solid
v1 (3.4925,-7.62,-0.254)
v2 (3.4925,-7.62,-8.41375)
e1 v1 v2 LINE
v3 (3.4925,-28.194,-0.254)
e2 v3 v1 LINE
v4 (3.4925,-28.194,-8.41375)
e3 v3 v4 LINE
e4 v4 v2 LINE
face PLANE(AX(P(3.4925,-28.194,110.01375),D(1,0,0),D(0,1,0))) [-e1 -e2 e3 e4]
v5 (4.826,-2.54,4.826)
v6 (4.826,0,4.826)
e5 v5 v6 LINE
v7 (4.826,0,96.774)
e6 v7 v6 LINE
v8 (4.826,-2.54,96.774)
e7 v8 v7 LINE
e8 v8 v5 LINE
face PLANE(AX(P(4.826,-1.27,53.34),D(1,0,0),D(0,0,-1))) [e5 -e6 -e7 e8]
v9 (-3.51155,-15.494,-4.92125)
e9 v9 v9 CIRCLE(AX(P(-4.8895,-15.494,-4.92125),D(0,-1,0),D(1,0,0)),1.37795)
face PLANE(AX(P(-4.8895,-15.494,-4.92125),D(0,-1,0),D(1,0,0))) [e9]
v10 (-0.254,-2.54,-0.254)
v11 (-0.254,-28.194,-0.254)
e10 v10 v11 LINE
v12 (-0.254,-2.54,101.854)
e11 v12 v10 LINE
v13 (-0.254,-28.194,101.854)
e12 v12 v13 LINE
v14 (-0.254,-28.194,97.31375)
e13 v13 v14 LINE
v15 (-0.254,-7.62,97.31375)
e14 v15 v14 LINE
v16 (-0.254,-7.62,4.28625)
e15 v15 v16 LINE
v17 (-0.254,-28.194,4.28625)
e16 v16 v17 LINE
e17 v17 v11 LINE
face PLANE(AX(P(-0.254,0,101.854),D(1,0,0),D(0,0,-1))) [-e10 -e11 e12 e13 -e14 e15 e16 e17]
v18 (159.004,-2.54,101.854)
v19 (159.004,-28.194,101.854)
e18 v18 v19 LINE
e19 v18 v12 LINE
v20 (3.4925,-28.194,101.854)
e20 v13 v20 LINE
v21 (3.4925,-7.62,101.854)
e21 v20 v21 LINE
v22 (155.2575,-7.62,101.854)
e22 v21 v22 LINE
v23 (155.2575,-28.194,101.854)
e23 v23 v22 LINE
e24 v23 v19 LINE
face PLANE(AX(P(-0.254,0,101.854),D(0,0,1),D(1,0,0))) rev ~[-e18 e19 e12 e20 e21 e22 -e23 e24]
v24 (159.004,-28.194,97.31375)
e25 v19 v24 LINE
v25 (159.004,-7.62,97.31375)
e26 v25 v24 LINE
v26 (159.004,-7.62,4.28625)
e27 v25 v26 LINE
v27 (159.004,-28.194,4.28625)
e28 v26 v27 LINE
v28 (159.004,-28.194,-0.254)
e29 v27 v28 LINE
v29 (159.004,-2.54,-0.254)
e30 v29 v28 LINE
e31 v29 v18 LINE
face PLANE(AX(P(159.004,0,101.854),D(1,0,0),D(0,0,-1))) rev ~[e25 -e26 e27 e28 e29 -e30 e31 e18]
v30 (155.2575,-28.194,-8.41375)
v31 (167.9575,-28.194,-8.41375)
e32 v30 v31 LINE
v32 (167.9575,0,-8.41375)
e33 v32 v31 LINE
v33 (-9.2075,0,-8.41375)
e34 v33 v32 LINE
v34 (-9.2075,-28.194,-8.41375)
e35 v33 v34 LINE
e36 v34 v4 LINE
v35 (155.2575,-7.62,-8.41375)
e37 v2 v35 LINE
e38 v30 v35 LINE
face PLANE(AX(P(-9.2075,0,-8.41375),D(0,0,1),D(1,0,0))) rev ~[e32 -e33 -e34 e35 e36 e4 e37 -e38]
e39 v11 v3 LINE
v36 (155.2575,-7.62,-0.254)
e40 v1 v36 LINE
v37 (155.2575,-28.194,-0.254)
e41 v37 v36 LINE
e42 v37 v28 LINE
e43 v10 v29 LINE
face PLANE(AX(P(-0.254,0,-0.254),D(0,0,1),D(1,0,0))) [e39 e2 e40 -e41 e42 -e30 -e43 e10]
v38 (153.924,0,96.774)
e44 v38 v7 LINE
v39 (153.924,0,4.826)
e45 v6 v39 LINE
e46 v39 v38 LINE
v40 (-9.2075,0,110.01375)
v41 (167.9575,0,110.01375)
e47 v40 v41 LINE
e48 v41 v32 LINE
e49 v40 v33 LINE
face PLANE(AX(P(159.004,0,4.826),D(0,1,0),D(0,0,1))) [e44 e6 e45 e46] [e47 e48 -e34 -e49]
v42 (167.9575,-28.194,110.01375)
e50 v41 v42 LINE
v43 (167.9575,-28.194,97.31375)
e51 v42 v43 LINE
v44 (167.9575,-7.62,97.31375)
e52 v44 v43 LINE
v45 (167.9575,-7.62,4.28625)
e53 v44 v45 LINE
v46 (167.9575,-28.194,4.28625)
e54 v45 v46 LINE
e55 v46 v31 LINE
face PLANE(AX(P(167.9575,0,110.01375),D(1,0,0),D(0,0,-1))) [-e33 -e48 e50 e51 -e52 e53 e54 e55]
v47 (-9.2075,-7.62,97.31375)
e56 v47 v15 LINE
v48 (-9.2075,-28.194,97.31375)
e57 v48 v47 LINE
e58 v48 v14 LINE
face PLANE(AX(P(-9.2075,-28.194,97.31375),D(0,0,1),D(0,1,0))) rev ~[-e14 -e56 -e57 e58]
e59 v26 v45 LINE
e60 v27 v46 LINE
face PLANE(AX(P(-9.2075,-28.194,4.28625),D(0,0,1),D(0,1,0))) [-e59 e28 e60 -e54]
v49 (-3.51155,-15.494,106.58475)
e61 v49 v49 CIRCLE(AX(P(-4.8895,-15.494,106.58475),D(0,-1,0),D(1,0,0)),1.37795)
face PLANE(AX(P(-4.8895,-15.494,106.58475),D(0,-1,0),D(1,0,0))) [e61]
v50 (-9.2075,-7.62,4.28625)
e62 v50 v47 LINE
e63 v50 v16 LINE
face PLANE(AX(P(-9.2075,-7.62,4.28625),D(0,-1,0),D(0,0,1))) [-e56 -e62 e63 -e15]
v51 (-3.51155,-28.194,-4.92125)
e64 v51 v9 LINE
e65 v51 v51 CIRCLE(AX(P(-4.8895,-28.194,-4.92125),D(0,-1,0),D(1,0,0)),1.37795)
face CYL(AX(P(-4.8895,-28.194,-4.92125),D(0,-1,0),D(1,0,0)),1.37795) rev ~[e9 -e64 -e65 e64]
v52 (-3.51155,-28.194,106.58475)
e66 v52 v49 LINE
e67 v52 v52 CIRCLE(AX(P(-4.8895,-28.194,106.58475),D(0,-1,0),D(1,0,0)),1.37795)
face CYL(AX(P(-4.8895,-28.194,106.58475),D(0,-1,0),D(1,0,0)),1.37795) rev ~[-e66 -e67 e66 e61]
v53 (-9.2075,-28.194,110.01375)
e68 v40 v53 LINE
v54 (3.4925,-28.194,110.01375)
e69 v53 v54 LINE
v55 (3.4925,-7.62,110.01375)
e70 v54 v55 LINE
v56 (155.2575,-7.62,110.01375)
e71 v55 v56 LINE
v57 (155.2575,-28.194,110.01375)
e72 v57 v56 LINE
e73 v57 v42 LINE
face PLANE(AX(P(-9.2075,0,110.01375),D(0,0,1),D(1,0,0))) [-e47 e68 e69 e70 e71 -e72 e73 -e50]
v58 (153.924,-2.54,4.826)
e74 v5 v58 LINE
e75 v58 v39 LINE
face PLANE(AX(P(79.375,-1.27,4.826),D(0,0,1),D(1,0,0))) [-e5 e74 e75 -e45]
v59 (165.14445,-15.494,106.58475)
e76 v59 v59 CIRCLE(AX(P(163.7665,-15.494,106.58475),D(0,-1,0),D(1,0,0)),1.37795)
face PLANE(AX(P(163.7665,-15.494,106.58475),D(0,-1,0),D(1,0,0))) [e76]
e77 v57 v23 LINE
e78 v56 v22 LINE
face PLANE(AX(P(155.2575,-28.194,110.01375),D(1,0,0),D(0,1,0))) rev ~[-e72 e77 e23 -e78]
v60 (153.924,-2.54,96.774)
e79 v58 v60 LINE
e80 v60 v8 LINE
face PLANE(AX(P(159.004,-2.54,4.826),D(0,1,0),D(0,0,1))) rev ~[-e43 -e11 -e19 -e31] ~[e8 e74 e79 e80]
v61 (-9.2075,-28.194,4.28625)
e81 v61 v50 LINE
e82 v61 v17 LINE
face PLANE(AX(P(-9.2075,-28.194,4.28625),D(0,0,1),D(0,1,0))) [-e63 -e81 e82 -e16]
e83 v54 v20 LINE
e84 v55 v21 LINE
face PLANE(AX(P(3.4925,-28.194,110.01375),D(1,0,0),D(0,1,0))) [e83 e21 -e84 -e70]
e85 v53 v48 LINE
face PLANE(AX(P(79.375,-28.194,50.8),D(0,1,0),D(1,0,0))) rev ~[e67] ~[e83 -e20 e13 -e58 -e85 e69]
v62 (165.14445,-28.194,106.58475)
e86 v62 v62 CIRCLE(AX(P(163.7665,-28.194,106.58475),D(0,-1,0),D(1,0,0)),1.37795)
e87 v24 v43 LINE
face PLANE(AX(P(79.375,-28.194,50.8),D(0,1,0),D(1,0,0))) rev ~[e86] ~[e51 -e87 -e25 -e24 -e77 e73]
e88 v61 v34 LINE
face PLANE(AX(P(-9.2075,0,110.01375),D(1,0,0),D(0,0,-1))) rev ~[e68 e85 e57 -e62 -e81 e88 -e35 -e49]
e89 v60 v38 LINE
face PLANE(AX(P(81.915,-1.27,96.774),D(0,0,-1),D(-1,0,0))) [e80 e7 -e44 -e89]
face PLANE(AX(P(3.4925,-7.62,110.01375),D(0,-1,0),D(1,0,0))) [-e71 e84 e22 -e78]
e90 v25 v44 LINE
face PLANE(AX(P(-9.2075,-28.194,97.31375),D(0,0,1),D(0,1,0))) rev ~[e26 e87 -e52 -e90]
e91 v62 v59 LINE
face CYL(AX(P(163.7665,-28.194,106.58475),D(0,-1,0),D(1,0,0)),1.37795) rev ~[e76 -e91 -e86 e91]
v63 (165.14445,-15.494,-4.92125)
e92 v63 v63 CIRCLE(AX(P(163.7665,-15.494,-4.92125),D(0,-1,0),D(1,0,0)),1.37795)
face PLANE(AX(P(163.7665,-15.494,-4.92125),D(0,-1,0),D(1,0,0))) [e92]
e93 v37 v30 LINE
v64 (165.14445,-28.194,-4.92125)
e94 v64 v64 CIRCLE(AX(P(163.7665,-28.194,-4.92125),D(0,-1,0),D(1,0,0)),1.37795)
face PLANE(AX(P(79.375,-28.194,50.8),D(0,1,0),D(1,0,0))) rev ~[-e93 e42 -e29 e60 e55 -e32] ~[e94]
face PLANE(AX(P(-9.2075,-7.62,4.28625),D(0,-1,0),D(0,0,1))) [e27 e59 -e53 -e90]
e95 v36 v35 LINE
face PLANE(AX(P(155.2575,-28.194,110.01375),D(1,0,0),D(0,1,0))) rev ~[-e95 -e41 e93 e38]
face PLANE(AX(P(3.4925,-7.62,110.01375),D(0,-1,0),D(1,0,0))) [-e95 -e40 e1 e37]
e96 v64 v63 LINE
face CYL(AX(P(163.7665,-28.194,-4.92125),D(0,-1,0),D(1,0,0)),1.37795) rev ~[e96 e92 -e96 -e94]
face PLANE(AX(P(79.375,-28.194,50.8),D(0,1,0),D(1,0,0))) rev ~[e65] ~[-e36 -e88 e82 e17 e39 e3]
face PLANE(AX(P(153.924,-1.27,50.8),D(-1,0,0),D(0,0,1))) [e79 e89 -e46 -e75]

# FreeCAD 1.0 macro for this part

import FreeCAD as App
import Part
import Sketcher
from FreeCAD import Vector
Q = App.Units.Quantity

doc = App.newDocument("Part")
body = doc.addObject("PartDesign::Body", "Body")

# Sketch on XZ plane
sketch1 = body.newObject("Sketcher::SketchObject", "Sketch")
sketch1.AttachmentSupport = (doc.getObject("XZ_Plane"), [""])
sketch1.MapMode = "FlatFace"
sketch1.addGeometry([
    Part.LineSegment(Vector(-9, -8, 0), Vector(-9, 110, 0)),  # 0
    Part.LineSegment(Vector(-9, 110, 0), Vector(168, 110, 0)),  # 1
    Part.LineSegment(Vector(168, 110, 0), Vector(168, -8, 0)),  # 2
    Part.LineSegment(Vector(168, -8, 0), Vector(-9, -8, 0)),  # 3
    Part.LineSegment(Vector(159, 102, 0), Vector(0, 102, 0)),  # 4
    Part.LineSegment(Vector(0, 102, 0), Vector(0, 0, 0)),  # 5
    Part.LineSegment(Vector(0, 0, 0), Vector(159, 0, 0)),  # 6
    Part.LineSegment(Vector(159, 0, 0), Vector(159, 102, 0)),  # 7
], False)
sketch1.addConstraint([
    Sketcher.Constraint("Coincident", 0, 2, 1, 1),
    Sketcher.Constraint("Coincident", 1, 2, 2, 1),
    Sketcher.Constraint("Coincident", 2, 2, 3, 1),
    Sketcher.Constraint("Coincident", 3, 2, 0, 1),
    Sketcher.Constraint("Coincident", 4, 2, 5, 1),
    Sketcher.Constraint("Coincident", 5, 2, 6, 1),
    Sketcher.Constraint("Coincident", 6, 2, 7, 1),
    Sketcher.Constraint("Coincident", 7, 2, 4, 1),
    Sketcher.Constraint("Vertical", 0),
    Sketcher.Constraint("Horizontal", 1),
    Sketcher.Constraint("Vertical", 2),
    Sketcher.Constraint("Horizontal", 3),
    Sketcher.Constraint("Horizontal", 4),
    Sketcher.Constraint("Vertical", 5),
    Sketcher.Constraint("Horizontal", 6),
    Sketcher.Constraint("Vertical", 7),
    Sketcher.Constraint("DistanceX", 4, 2, 4, 1, Q("6.27 in")),
    Sketcher.Constraint("DistanceY", 5, 2, 5, 1, Q("4.02 in")),
    Sketcher.Constraint("DistanceX", 1, 1, 1, 2, Q("6.975 in")),
    Sketcher.Constraint("DistanceX", 4, 2, -1, 1, Q("0.01 in")),
    Sketcher.Constraint("DistanceY", -1, 1, 4, 2, Q("4.01 in")),
    Sketcher.Constraint("DistanceY", 0, 1, 0, 2, Q("4.6625 in")),
    Sketcher.Constraint("DistanceX", 0, 2, -1, 1, Q("0.3625 in")),
    Sketcher.Constraint("DistanceY", -1, 1, 0, 2, 110.01375),
])
pad1 = body.newObject("PartDesign::Pad", "Pad")
pad1.Profile = sketch1
pad1.Length = Q("1.11 in")

# Sketch on XY plane
sketch2 = body.newObject("Sketcher::SketchObject", "Sketch001")
sketch2.AttachmentSupport = (doc.getObject("XY_Plane"), [""])
sketch2.MapMode = "FlatFace"
sketch2.AttachmentOffset = App.Placement(Vector(0, 0, -0.01 * 25.4), App.Rotation())
sketch2.addGeometry([
    Part.LineSegment(Vector(-0.3, 0, 0), Vector(-0.3, -2.5, 0)),
    Part.LineSegment(Vector(-0.3, -2.5, 0), Vector(159, -2.5, 0)),
    Part.LineSegment(Vector(159, -2.5, 0), Vector(159, 0, 0)),
    Part.LineSegment(Vector(159, 0, 0), Vector(-0.3, 0, 0)),
], False)
sketch2.addConstraint([
    Sketcher.Constraint("Coincident", 0, 2, 1, 1),
    Sketcher.Constraint("Coincident", 1, 2, 2, 1),
    Sketcher.Constraint("Coincident", 2, 2, 3, 1),
    Sketcher.Constraint("Coincident", 3, 2, 0, 1),
    Sketcher.Constraint("Vertical", 0),
    Sketcher.Constraint("Horizontal", 1),
    Sketcher.Constraint("Vertical", 2),
    Sketcher.Constraint("Horizontal", 3),
    Sketcher.Constraint("PointOnObject", 2, 2, -1),
    Sketcher.Constraint("DistanceY", 0, 2, 0, 1, Q("0.1 in")),
    Sketcher.Constraint("DistanceX", 1, 1, 1, 2, Q("6.27 in")),
    Sketcher.Constraint("DistanceX", 0, 2, -1, 1, Q("0.01 in")),
])
pad2 = body.newObject("PartDesign::Pad", "Pad001")
pad2.Profile = sketch2
pad2.Length = Q("0.2 in")

# Sketch on YZ plane
sketch3 = body.newObject("Sketcher::SketchObject", "Sketch002")
sketch3.AttachmentSupport = (doc.getObject("YZ_Plane"), [""])
sketch3.MapMode = "FlatFace"
sketch3.AttachmentOffset = App.Placement(Vector(0, 0, -0.01 * 25.4), App.Rotation())
sketch3.addGeometry([
    Part.LineSegment(Vector(0, 101.9, 0), Vector(-2.5, 101.9, 0)),
    Part.LineSegment(Vector(-2.5, 101.9, 0), Vector(-2.5, 4.8, 0)),
    Part.LineSegment(Vector(-2.5, 4.8, 0), Vector(0, 4.8, 0)),
    Part.LineSegment(Vector(0, 4.8, 0), Vector(0, 101.9, 0)),
], False)
sketch3.addConstraint([
    Sketcher.Constraint("Coincident", 0, 2, 1, 1),
    Sketcher.Constraint("Coincident", 1, 2, 2, 1),
    Sketcher.Constraint("Coincident", 2, 2, 3, 1),
    Sketcher.Constraint("Coincident", 3, 2, 0, 1),
    Sketcher.Constraint("Horizontal", 0),
    Sketcher.Constraint("Vertical", 1),
    Sketcher.Constraint("Horizontal", 2),
    Sketcher.Constraint("Vertical", 3),
    Sketcher.Constraint("PointOnObject", 2, 2, -2),
    Sketcher.Constraint("DistanceX", 0, 2, 0, 1, Q("0.1 in")),
    Sketcher.Constraint("DistanceY", 1, 2, 1, 1, Q("3.82 in")),
    Sketcher.Constraint("DistanceY", -1, 1, 0, 2, Q("4.01 in")),
])
pad3 = body.newObject("PartDesign::Pad", "Pad002")
pad3.Profile = sketch3
pad3.Length = Q("0.2 in")

# Sketch on XY plane
sketch4 = body.newObject("Sketcher::SketchObject", "Sketch003")
sketch4.AttachmentSupport = (doc.getObject("XY_Plane"), [""])
sketch4.MapMode = "FlatFace"
sketch4.AttachmentOffset = App.Placement(Vector(0, 0, 4.01 * 25.4), App.Rotation())
sketch4.addGeometry([
    Part.LineSegment(Vector(159, 0, 0), Vector(159, -2.5, 0)),
    Part.LineSegment(Vector(159, -2.5, 0), Vector(4.8, -2.5, 0)),
    Part.LineSegment(Vector(4.8, -2.5, 0), Vector(4.8, 0, 0)),
    Part.LineSegment(Vector(4.8, 0, 0), Vector(159, 0, 0)),
], False)
sketch4.addConstraint([
    Sketcher.Constraint("Coincident", 0, 2, 1, 1),
    Sketcher.Constraint("Coincident", 1, 2, 2, 1),
    Sketcher.Constraint("Coincident", 2, 2, 3, 1),
    Sketcher.Constraint("Coincident", 3, 2, 0, 1),
    Sketcher.Constraint("Vertical", 0),
    Sketcher.Constraint("Horizontal", 1),
    Sketcher.Constraint("Vertical", 2),
    Sketcher.Constraint("Horizontal", 3),
    Sketcher.Constraint("PointOnObject", 2, 2, -1),
    Sketcher.Constraint("DistanceY", 0, 2, 0, 1, Q("0.1 in")),
    Sketcher.Constraint("DistanceX", 1, 2, 1, 1, Q("6.07 in")),
    Sketcher.Constraint("DistanceX", -1, 1, 0, 2, Q("6.26 in")),
])
pad4 = body.newObject("PartDesign::Pad", "Pad003")
pad4.Profile = sketch4
pad4.Length = Q("0.2 in")
pad4.Reversed = True

# Sketch on YZ plane
sketch5 = body.newObject("Sketcher::SketchObject", "Sketch004")
sketch5.AttachmentSupport = (doc.getObject("YZ_Plane"), [""])
sketch5.MapMode = "FlatFace"
sketch5.AttachmentOffset = App.Placement(Vector(0, 0, 6.26 * 25.4), App.Rotation())
sketch5.addGeometry([
    Part.LineSegment(Vector(0, 4.8, 0), Vector(-2.5, 4.8, 0)),
    Part.LineSegment(Vector(-2.5, 4.8, 0), Vector(-2.5, 96.8, 0)),
    Part.LineSegment(Vector(-2.5, 96.8, 0), Vector(0, 96.8, 0)),
    Part.LineSegment(Vector(0, 96.8, 0), Vector(0, 4.8, 0)),
], False)
sketch5.addConstraint([
    Sketcher.Constraint("Coincident", 0, 2, 1, 1),
    Sketcher.Constraint("Coincident", 1, 2, 2, 1),
    Sketcher.Constraint("Coincident", 2, 2, 3, 1),
    Sketcher.Constraint("Coincident", 3, 2, 0, 1),
    Sketcher.Constraint("Horizontal", 0),
    Sketcher.Constraint("Vertical", 1),
    Sketcher.Constraint("Horizontal", 2),
    Sketcher.Constraint("Vertical", 3),
    Sketcher.Constraint("PointOnObject", 2, 2, -2),
    Sketcher.Constraint("DistanceX", 0, 2, 0, 1, Q("0.1 in")),
    Sketcher.Constraint("DistanceY", 1, 1, 1, 2, Q("3.62 in")),
    Sketcher.Constraint("DistanceY", -1, 1, 0, 2, Q("0.19 in")),
])
pad5 = body.newObject("PartDesign::Pad", "Pad004")
pad5.Profile = sketch5
pad5.Length = Q("0.2 in")
pad5.Reversed = True

# Sketch on YZ plane
sketch6 = body.newObject("Sketcher::SketchObject", "Sketch005")
sketch6.AttachmentSupport = (doc.getObject("YZ_Plane"), [""])
sketch6.MapMode = "FlatFace"
sketch6.AttachmentOffset = App.Placement(Vector(0, 0, -0.3625 * 25.4), App.Rotation())
sketch6.addGeometry([
    Part.LineSegment(Vector(-8, 4, 0), Vector(-28, 4, 0)),
    Part.LineSegment(Vector(-28, 4, 0), Vector(-28, 97, 0)),
    Part.LineSegment(Vector(-28, 97, 0), Vector(-8, 97, 0)),
    Part.LineSegment(Vector(-8, 97, 0), Vector(-8, 4, 0)),
], False)
sketch6.addConstraint([
    Sketcher.Constraint("Coincident", 0, 2, 1, 1),
    Sketcher.Constraint("Coincident", 1, 2, 2, 1),
    Sketcher.Constraint("Coincident", 2, 2, 3, 1),
    Sketcher.Constraint("Coincident", 3, 2, 0, 1),
    Sketcher.Constraint("Horizontal", 0),
    Sketcher.Constraint("Vertical", 1),
    Sketcher.Constraint("Horizontal", 2),
    Sketcher.Constraint("Vertical", 3),
    Sketcher.Constraint("DistanceX", 0, 2, 0, 1, Q("0.81 in")),
    Sketcher.Constraint("DistanceX", 2, 2, -1, 1, Q("0.3 in")),
    Sketcher.Constraint("DistanceY", 1, 1, 1, 2, Q("3.6625 in")),
    Sketcher.Constraint("DistanceY", -1, 1, 0, 2, 4.28625),
])
pocket1 = body.newObject("PartDesign::Pocket", "Pocket")
pocket1.Profile = sketch6
pocket1.Length = Q("7.82 in")
pocket1.Reversed = True

# Sketch on XY plane
sketch7 = body.newObject("Sketcher::SketchObject", "Sketch006")
sketch7.AttachmentSupport = (doc.getObject("XY_Plane"), [""])
sketch7.MapMode = "FlatFace"
sketch7.AttachmentOffset = App.Placement(Vector(0, 0, 110.01375), App.Rotation())
sketch7.addGeometry([
    Part.LineSegment(Vector(3, -8, 0), Vector(3, -28, 0)),
    Part.LineSegment(Vector(3, -28, 0), Vector(155, -28, 0)),
    Part.LineSegment(Vector(155, -28, 0), Vector(155, -8, 0)),
    Part.LineSegment(Vector(155, -8, 0), Vector(3, -8, 0)),
], False)
sketch7.addConstraint([
    Sketcher.Constraint("Coincident", 0, 2, 1, 1),
    Sketcher.Constraint("Coincident", 1, 2, 2, 1),
    Sketcher.Constraint("Coincident", 2, 2, 3, 1),
    Sketcher.Constraint("Coincident", 3, 2, 0, 1),
    Sketcher.Constraint("Vertical", 0),
    Sketcher.Constraint("Horizontal", 1),
    Sketcher.Constraint("Vertical", 2),
    Sketcher.Constraint("Horizontal", 3),
    Sketcher.Constraint("DistanceY", 0, 2, 0, 1, Q("0.81 in")),
    Sketcher.Constraint("DistanceY", 2, 2, -1, 1, Q("0.3 in")),
    Sketcher.Constraint("DistanceX", 1, 1, 1, 2, Q("5.975 in")),
    Sketcher.Constraint("DistanceX", -1, 1, 0, 2, Q("0.1375 in")),
])
pocket2 = body.newObject("PartDesign::Pocket", "Pocket001")
pocket2.Profile = sketch7
pocket2.Length = Q("7.82 in")

# Sketch on XZ plane
sketch8 = body.newObject("Sketcher::SketchObject", "Sketch007")
sketch8.AttachmentSupport = (doc.getObject("XZ_Plane"), [""])
sketch8.MapMode = "FlatFace"
sketch8.AttachmentOffset = App.Placement(Vector(0, 0, 1.11 * 25.4), App.Rotation())
sketch8.addGeometry([
    Part.Circle(Vector(-4.9, 106.6, 0), Vector(0, 0, 1), 1.4),
    Part.Circle(Vector(-4.9, -4.9, 0), Vector(0, 0, 1), 1.4),
    Part.Circle(Vector(163.8, -4.9, 0), Vector(0, 0, 1), 1.4),
    Part.Circle(Vector(163.8, 106.6, 0), Vector(0, 0, 1), 1.4),
], False)
sketch8.addConstraint([
    Sketcher.Constraint("Equal", 0, 1),
    Sketcher.Constraint("Equal", 1, 2),
    Sketcher.Constraint("Equal", 2, 3),
    Sketcher.Constraint("Horizontal", 1, 3, 2, 3),
    Sketcher.Constraint("Horizontal", 0, 3, 3, 3),
    Sketcher.Constraint("Vertical", 0, 3, 1, 3),
    Sketcher.Constraint("Vertical", 2, 3, 3, 3),
    Sketcher.Constraint("Diameter", 0, Q("0.1085 in")),
    Sketcher.Constraint("DistanceY", 1, 3, 0, 3, Q("4.39 in")),
    Sketcher.Constraint("DistanceX", 1, 3, 2, 3, Q("6.64 in")),
    Sketcher.Constraint("DistanceX", 0, 3, -1, 1, Q("0.1925 in")),
    Sketcher.Constraint("DistanceY", -1, 1, 0, 3, 106.58475),
])
pocket3 = body.newObject("PartDesign::Pocket", "Pocket002")
pocket3.Profile = sketch8
pocket3.Length = Q("0.5 in")

doc.recompute()
